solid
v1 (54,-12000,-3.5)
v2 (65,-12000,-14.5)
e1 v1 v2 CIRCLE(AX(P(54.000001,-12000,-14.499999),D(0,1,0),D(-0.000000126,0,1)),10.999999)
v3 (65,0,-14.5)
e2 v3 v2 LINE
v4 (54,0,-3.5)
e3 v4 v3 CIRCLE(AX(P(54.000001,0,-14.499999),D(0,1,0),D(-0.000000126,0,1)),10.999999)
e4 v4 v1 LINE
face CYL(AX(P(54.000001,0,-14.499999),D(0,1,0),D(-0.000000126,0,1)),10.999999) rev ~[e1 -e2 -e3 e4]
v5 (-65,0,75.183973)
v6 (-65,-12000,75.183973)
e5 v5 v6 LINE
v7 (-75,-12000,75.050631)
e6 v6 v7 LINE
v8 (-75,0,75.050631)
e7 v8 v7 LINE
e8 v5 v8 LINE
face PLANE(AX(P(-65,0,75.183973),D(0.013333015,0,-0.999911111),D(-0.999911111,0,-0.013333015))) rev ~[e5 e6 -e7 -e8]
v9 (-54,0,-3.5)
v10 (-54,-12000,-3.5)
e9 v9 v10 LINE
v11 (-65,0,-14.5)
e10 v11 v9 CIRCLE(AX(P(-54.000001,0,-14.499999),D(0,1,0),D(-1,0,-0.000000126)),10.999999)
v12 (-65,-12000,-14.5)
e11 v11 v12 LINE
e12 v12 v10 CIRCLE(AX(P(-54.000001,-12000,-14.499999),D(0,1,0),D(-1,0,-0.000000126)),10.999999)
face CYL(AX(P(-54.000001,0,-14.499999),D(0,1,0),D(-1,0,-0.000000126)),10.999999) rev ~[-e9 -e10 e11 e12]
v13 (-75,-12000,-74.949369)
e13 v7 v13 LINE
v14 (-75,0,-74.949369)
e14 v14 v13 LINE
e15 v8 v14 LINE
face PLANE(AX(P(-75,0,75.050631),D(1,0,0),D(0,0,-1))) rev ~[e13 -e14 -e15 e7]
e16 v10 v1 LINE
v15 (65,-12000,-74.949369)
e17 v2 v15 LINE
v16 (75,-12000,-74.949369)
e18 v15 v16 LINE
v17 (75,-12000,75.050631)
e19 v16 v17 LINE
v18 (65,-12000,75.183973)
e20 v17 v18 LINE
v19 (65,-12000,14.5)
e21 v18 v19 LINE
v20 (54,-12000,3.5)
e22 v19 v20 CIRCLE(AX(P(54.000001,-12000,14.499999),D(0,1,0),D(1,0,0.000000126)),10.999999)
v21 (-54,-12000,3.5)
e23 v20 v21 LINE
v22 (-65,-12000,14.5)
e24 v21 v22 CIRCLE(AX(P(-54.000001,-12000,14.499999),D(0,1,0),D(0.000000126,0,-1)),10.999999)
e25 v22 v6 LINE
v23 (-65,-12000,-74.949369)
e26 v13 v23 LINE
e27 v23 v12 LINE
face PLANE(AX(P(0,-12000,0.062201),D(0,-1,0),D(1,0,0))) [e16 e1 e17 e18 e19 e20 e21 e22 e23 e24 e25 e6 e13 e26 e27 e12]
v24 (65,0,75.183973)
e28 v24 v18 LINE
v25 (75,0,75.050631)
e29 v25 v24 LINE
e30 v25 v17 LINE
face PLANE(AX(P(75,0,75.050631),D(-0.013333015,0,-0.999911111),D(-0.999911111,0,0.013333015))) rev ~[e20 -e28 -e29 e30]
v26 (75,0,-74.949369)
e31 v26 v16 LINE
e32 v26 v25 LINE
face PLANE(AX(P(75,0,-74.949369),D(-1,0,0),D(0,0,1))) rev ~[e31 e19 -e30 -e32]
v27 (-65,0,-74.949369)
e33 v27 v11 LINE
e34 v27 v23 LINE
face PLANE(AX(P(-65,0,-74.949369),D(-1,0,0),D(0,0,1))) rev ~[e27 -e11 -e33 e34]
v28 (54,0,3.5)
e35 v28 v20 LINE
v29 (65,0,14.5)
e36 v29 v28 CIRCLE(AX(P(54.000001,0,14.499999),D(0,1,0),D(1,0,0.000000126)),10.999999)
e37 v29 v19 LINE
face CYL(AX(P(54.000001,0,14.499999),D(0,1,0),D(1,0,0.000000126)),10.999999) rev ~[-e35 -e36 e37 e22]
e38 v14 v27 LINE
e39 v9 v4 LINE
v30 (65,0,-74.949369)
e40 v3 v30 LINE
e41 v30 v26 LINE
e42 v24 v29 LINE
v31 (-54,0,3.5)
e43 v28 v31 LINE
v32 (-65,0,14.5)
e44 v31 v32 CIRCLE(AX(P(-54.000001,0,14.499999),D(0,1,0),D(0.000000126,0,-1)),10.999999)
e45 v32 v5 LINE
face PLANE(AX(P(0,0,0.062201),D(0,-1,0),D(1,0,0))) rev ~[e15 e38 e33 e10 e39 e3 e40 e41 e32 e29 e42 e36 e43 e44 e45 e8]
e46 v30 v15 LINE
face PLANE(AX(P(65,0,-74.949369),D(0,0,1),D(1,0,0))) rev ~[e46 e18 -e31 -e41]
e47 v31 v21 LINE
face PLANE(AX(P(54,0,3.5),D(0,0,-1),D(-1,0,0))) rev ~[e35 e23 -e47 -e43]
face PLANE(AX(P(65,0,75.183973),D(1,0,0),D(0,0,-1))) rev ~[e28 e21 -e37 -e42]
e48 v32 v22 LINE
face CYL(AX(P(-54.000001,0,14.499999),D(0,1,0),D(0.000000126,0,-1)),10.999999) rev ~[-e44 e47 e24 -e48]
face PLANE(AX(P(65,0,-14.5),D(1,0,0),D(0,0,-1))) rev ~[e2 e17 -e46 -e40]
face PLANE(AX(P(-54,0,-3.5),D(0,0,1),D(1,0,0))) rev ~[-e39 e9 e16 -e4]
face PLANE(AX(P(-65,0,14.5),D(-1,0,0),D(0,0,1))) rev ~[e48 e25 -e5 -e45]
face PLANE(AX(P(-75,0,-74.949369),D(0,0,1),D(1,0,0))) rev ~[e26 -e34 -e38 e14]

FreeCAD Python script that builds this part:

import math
import FreeCAD as App
import Part
import Sketcher
Q = App.Units.Quantity

doc = App.newDocument("Part")
body = doc.addObject("PartDesign::Body", "Body")

# Sketch on XZ plane
sketch1 = body.newObject("Sketcher::SketchObject", "Sketch")
sketch1.AttachmentSupport = (doc.getObject("XZ_Plane"), [""])
sketch1.MapMode = "FlatFace"
sketch1.addGeometry([
    Part.LineSegment(App.Vector(-75, 75.050631, 0), App.Vector(-75, -74.949369, 0)),  # 0
    Part.LineSegment(App.Vector(-75, -74.949369, 0), App.Vector(-65, -74.949369, 0)),  # 1
    Part.LineSegment(App.Vector(-65, -74.949369, 0), App.Vector(-65, -14.5, 0)),  # 2
    Part.ArcOfCircle(Part.Circle(App.Vector(-54.000001, -14.499999, 0), App.Vector(0, 0, 1), 10.999999), math.radians(89.999993), math.radians(180.000007)),  # 3
    Part.LineSegment(App.Vector(-54, -3.5, 0), App.Vector(54, -3.5, 0)),  # 4
    Part.ArcOfCircle(Part.Circle(App.Vector(54.000001, -14.499999, 0), App.Vector(0, 0, 1), 10.999999), math.radians(-0.000007), math.radians(90.000007)),  # 5
    Part.LineSegment(App.Vector(65, -14.5, 0), App.Vector(65, -74.949369, 0)),  # 6
    Part.LineSegment(App.Vector(65, -74.949369, 0), App.Vector(75, -74.949369, 0)),  # 7
    Part.LineSegment(App.Vector(75, -74.949369, 0), App.Vector(75, 75.050631, 0)),  # 8
    Part.LineSegment(App.Vector(75, 75.050631, 0), App.Vector(65, 75.183973, 0)),  # 9
    Part.LineSegment(App.Vector(65, 75.183973, 0), App.Vector(65, 14.5, 0)),  # 10
    Part.ArcOfCircle(Part.Circle(App.Vector(54.000001, 14.499999, 0), App.Vector(0, 0, 1), 10.999999), math.radians(-90.000007), math.radians(0.000007)),  # 11
    Part.LineSegment(App.Vector(54, 3.5, 0), App.Vector(-54, 3.5, 0)),  # 12
    Part.ArcOfCircle(Part.Circle(App.Vector(-54.000001, 14.499999, 0), App.Vector(0, 0, 1), 10.999999), math.radians(179.999993), math.radians(270.000007)),  # 13
    Part.LineSegment(App.Vector(-65, 14.5, 0), App.Vector(-65, 75.183973, 0)),  # 14
    Part.LineSegment(App.Vector(-65, 75.183973, 0), App.Vector(-75, 75.050631, 0)),  # 15
], False)
sketch1.addConstraint([
    Sketcher.Constraint("Coincident", 0, 2, 1, 1),
    Sketcher.Constraint("Coincident", 1, 2, 2, 1),
    Sketcher.Constraint("Tangent", 2, 2, 3, 2),
    Sketcher.Constraint("Tangent", 3, 1, 4, 1),
    Sketcher.Constraint("Tangent", 4, 2, 5, 2),
    Sketcher.Constraint("Tangent", 5, 1, 6, 1),
    Sketcher.Constraint("Coincident", 6, 2, 7, 1),
    Sketcher.Constraint("Coincident", 7, 2, 8, 1),
    Sketcher.Constraint("Coincident", 8, 2, 9, 1),
    Sketcher.Constraint("Coincident", 9, 2, 10, 1),
    Sketcher.Constraint("Tangent", 10, 2, 11, 2),
    Sketcher.Constraint("Tangent", 11, 1, 12, 1),
    Sketcher.Constraint("Tangent", 12, 2, 13, 2),
    Sketcher.Constraint("Tangent", 13, 1, 14, 1),
    Sketcher.Constraint("Coincident", 14, 2, 15, 1),
    Sketcher.Constraint("Coincident", 15, 2, 0, 1),
    Sketcher.Constraint("Vertical", 0),
    Sketcher.Constraint("Horizontal", 1),
    Sketcher.Constraint("Vertical", 2),
    Sketcher.Constraint("Horizontal", 4),
    Sketcher.Constraint("Vertical", 6),
    Sketcher.Constraint("Horizontal", 7),
    Sketcher.Constraint("Vertical", 8),
    Sketcher.Constraint("Vertical", 10),
    Sketcher.Constraint("Horizontal", 12),
    Sketcher.Constraint("Vertical", 14),
    Sketcher.Constraint("Equal", 3, 5),
    Sketcher.Constraint("Equal", 5, 11),
    Sketcher.Constraint("Equal", 11, 13),
    Sketcher.Constraint("Symmetric", 3, 3, 11, 3, -1, 1),
    Sketcher.Constraint("Symmetric", 1, 2, 6, 2, -2),
    Sketcher.Constraint("Symmetric", 9, 2, 14, 2, -2),
    Sketcher.Constraint("Symmetric", 8, 2, 15, 2, -2),
    Sketcher.Constraint("Radius", 3, Q("10.999999 mm")),
    Sketcher.Constraint("DistanceX", 1, 1, 1, 2, Q("10 mm")),
    Sketcher.Constraint("DistanceX", 4, 1, 4, 2, Q("108 mm")),
    Sketcher.Constraint("DistanceY", 0, 2, 0, 1, Q("150 mm")),
    Sketcher.Constraint("DistanceY", 2, 2, 13, 3, Q("28.999999 mm")),
    Sketcher.Constraint("DistanceY", 2, 1, 2, 2, Q("60.449369 mm")),
    Sketcher.Constraint("Distance", 9, Q("10.000889 mm")),
])
pad1 = body.newObject("PartDesign::Pad", "Pad")
pad1.Profile = sketch1
pad1.Length = 12000

doc.recompute()
